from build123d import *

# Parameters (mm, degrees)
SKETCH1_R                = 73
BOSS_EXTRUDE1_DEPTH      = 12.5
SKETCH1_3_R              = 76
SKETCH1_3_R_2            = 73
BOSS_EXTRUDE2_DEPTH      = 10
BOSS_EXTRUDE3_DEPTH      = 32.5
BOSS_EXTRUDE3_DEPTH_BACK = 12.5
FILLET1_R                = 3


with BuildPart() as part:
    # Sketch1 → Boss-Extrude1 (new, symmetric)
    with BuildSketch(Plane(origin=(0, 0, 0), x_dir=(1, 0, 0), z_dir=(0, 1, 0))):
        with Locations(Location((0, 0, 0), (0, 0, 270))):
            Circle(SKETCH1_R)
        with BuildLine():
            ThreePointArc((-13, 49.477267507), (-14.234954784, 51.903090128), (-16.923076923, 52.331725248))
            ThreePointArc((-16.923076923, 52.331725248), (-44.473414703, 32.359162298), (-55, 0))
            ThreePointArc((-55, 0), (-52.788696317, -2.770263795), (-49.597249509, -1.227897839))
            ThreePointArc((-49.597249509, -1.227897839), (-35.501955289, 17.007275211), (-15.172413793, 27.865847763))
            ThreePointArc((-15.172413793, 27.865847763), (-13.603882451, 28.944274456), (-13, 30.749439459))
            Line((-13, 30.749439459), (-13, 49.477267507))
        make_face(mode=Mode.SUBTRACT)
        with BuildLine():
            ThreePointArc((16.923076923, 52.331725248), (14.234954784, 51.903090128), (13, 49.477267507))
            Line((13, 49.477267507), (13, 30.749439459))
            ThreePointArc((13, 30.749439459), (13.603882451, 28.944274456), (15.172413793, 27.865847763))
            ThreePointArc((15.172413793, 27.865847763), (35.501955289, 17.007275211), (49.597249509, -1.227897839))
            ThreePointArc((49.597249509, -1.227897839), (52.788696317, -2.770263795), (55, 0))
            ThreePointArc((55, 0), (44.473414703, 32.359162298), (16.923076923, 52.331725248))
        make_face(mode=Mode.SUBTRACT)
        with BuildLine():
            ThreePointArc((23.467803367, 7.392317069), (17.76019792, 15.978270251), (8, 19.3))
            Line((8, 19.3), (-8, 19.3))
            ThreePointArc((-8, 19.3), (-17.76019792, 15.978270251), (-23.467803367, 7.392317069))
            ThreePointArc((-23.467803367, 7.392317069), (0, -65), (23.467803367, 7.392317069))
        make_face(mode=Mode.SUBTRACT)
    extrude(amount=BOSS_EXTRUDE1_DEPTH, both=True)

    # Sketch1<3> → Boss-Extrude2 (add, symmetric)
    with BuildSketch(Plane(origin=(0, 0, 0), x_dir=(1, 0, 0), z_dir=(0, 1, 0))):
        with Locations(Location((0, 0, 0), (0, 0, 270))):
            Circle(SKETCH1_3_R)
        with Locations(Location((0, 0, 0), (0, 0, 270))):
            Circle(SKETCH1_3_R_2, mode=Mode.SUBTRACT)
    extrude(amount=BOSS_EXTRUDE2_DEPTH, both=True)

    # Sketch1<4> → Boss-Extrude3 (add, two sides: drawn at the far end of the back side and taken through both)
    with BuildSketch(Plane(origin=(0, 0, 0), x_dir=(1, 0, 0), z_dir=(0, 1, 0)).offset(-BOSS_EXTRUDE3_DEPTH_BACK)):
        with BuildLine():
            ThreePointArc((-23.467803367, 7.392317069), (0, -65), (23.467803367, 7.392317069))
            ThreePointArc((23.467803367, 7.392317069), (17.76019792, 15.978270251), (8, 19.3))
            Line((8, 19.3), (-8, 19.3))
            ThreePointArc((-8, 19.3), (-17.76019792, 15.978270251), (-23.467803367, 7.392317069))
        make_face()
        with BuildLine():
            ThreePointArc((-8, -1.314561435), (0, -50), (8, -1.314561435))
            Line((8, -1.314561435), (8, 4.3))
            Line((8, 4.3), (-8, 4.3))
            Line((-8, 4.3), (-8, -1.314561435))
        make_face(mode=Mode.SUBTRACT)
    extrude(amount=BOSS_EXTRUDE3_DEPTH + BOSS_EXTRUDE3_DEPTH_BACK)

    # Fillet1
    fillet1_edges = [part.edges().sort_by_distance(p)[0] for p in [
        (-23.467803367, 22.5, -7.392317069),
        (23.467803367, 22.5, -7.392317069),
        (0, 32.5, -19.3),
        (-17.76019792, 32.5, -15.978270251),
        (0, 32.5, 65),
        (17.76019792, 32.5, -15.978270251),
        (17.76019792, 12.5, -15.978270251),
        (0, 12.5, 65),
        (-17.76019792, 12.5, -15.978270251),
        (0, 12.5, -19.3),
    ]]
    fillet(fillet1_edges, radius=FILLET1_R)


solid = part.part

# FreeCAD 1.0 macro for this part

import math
import FreeCAD as App
import Part
import Sketcher
from FreeCAD import Vector
Q = App.Units.Quantity


def edges_at(feature, points):
    """Names of the edges that pass closest to the given points."""
    edges = feature.Shape.Edges
    near = lambda p: min(range(len(edges)), key=lambda i: edges[i].distToShape(Part.Vertex(*p))[0])
    return sorted({f"Edge{near(p) + 1}" for p in points})

doc = App.newDocument("Part")
params = doc.addObject("Spreadsheet::Sheet", "Params")
for row, (alias, value) in enumerate([
    ("sketch1_diameter", "146 mm"),
    ("sketch1_radius", "3 mm"),
    ("sketch1_radius2", "55 mm"),
    ("sketch1_radius3", "16 mm"),
    ("sketch1_radius4", "40 mm"),
    ("pad1_length", "25 mm"),
    ("sketch2_diameter", "152 mm"),
    ("sketch2_diameter2", "146 mm"),
    ("pad2_length", "20 mm"),
    ("sketch3_radius", "40 mm"),
    ("sketch3_radius2", "16 mm"),
    ("sketch3_radius3", "25 mm"),
    ("sketch3_width", "16 mm"),
    ("pad3_length", "32.5 mm"),
    ("pad3_length2", "12.5 mm"),
    ("fillet_radius", "3 mm"),
], start=1):
    params.set(f"A{row}", alias)
    params.set(f"B{row}", "=" + value)
    params.setAlias(f"B{row}", alias)

body = doc.addObject("PartDesign::Body", "Body")

sketch1 = body.newObject("Sketcher::SketchObject", "Sketch")
sketch1.AttachmentSupport = (doc.getObject("XZ_Plane"), [""])
sketch1.MapMode = "FlatFace"
sketch1.addGeometry([
    Part.Circle(Vector(0, 0, 0), Vector(0, 0, 1), 73),
    Part.ArcOfCircle(Part.Circle(Vector(-16, -49.5, 0), Vector(0, 0, 1), 3), math.radians(-108), math.radians(0)),
    Part.LineSegment(Vector(-13, -49.5, 0), Vector(-13, -30.7, 0)),
    Part.ArcOfCircle(Part.Circle(Vector(-16, -30.7, 0), Vector(0, 0, 1), 3), math.radians(0), math.radians(74)),
    Part.ArcOfCircle(Part.Circle(Vector(0, 25, 0), Vector(0, 0, 1), 55), math.radians(-154), math.radians(-106)),
    Part.ArcOfCircle(Part.Circle(Vector(-52.2, 0, 0), Vector(0, 0, 1), 2.8), math.radians(26), math.radians(180)),
    Part.ArcOfCircle(Part.Circle(Vector(0, 0, 0), Vector(0, 0, 1), 55), math.radians(-180), math.radians(-108)),
    Part.ArcOfCircle(Part.Circle(Vector(16, -49.5, 0), Vector(0, 0, 1), 3), math.radians(180), math.radians(288)),
    Part.ArcOfCircle(Part.Circle(Vector(0, 0, 0), Vector(0, 0, 1), 55), math.radians(-72), math.radians(0)),
    Part.ArcOfCircle(Part.Circle(Vector(52.2, 0, 0), Vector(0, 0, 1), 2.8), math.radians(0), math.radians(154)),
    Part.ArcOfCircle(Part.Circle(Vector(0, 25, 0), Vector(0, 0, 1), 55), math.radians(-74), math.radians(-26)),
    Part.ArcOfCircle(Part.Circle(Vector(16, -30.7, 0), Vector(0, 0, 1), 3), math.radians(106), math.radians(180)),
    Part.LineSegment(Vector(13, -30.7, 0), Vector(13, -49.5, 0)),
    Part.ArcOfCircle(Part.Circle(Vector(8, -3.3, 0), Vector(0, 0, 1), 16), math.radians(-90), math.radians(-15)),
    Part.ArcOfCircle(Part.Circle(Vector(0, 25, 0), Vector(0, 0, 1), 40), math.radians(-54), math.radians(234)),
    Part.ArcOfCircle(Part.Circle(Vector(-8, -3.3, 0), Vector(0, 0, 1), 16), math.radians(-165), math.radians(-90)),
    Part.LineSegment(Vector(-8, -19.3, 0), Vector(8, -19.3, 0)),
], False)
sketch1.addConstraint([
    Sketcher.Constraint("Tangent", 1, 2, 2, 1),
    Sketcher.Constraint("Tangent", 2, 2, 3, 1),
    Sketcher.Constraint("Tangent", 3, 2, 4, 2),
    Sketcher.Constraint("Tangent", 4, 1, 5, 1),
    Sketcher.Constraint("Tangent", 5, 2, 6, 1),
    Sketcher.Constraint("Tangent", 6, 2, 1, 1),
    Sketcher.Constraint("Tangent", 7, 2, 8, 1),
    Sketcher.Constraint("Tangent", 8, 2, 9, 1),
    Sketcher.Constraint("Tangent", 9, 2, 10, 2),
    Sketcher.Constraint("Tangent", 10, 1, 11, 1),
    Sketcher.Constraint("Tangent", 11, 2, 12, 1),
    Sketcher.Constraint("Tangent", 12, 2, 7, 1),
    Sketcher.Constraint("Coincident", 13, 2, 14, 1),
    Sketcher.Constraint("Coincident", 14, 2, 15, 1),
    Sketcher.Constraint("Tangent", 15, 2, 16, 1),
    Sketcher.Constraint("Tangent", 16, 2, 13, 1),
    Sketcher.Constraint("Vertical", 2),
    Sketcher.Constraint("Vertical", 12),
    Sketcher.Constraint("Horizontal", 16),
    Sketcher.Constraint("Coincident", 0, 3, -1, 1),
    Sketcher.Constraint("Coincident", 6, 3, -1, 1),
    Sketcher.Constraint("Coincident", 8, 3, -1, 1),
    Sketcher.Constraint("Coincident", 10, 3, 4, 3),
    Sketcher.Constraint("Coincident", 14, 3, 4, 3),
    Sketcher.Constraint("Equal", 1, 3),
    Sketcher.Constraint("Equal", 4, 6),
    Sketcher.Constraint("Equal", 3, 7),
    Sketcher.Constraint("Equal", 6, 8),
    Sketcher.Constraint("Equal", 5, 9),
    Sketcher.Constraint("Equal", 8, 10),
    Sketcher.Constraint("Equal", 7, 11),
    Sketcher.Constraint("Equal", 13, 15),
    Sketcher.Constraint("Symmetric", 3, 3, 11, 3, -2),
    Sketcher.Constraint("PointOnObject", 5, 3, -1),
    Sketcher.Constraint("Horizontal", 13, 2, 14, 2),
    Sketcher.Constraint("Diameter", 0, Q("146 mm")),
    Sketcher.Constraint("Radius", 1, Q("3 mm")),
    Sketcher.Constraint("Radius", 4, Q("55 mm")),
    Sketcher.Constraint("Radius", 13, Q("16 mm")),
    Sketcher.Constraint("Radius", 14, Q("40 mm")),
    Sketcher.Constraint("DistanceX", 16, 1, 16, 2, Q("16 mm")),
    Sketcher.Constraint("DistanceX", 1, 3, -1, 1, Q("16 mm")),
    Sketcher.Constraint("DistanceY", -1, 1, 4, 3, Q("25 mm")),
    Sketcher.Constraint("DistanceY", 13, 3, -1, 1, Q("3.3 mm")),
])
sketch1.setExpression("Constraints[35]", "Params.sketch1_diameter")
sketch1.setExpression("Constraints[36]", "Params.sketch1_radius")
sketch1.setExpression("Constraints[37]", "Params.sketch1_radius2")
sketch1.setExpression("Constraints[38]", "Params.sketch1_radius3")
sketch1.setExpression("Constraints[39]", "Params.sketch1_radius4")
pad1 = body.newObject("PartDesign::Pad", "Pad")
pad1.Profile = sketch1
pad1.setExpression("Length", "Params.pad1_length")
pad1.Midplane = True

sketch2 = body.newObject("Sketcher::SketchObject", "Sketch001")
sketch2.AttachmentSupport = (doc.getObject("XZ_Plane"), [""])
sketch2.MapMode = "FlatFace"
sketch2.addGeometry([
    Part.Circle(Vector(0, 0, 0), Vector(0, 0, 1), 76),
    Part.Circle(Vector(0, 0, 0), Vector(0, 0, 1), 73),
], False)
sketch2.addConstraint([
    Sketcher.Constraint("Coincident", 0, 3, -1, 1),
    Sketcher.Constraint("Coincident", 1, 3, -1, 1),
    Sketcher.Constraint("Diameter", 0, Q("152 mm")),
    Sketcher.Constraint("Diameter", 1, Q("146 mm")),
])
sketch2.setExpression("Constraints[2]", "Params.sketch2_diameter")
sketch2.setExpression("Constraints[3]", "Params.sketch2_diameter2")
pad2 = body.newObject("PartDesign::Pad", "Pad001")
pad2.Profile = sketch2
pad2.setExpression("Length", "Params.pad2_length")
pad2.Midplane = True

sketch3 = body.newObject("Sketcher::SketchObject", "Sketch002")
sketch3.AttachmentSupport = (doc.getObject("XZ_Plane"), [""])
sketch3.MapMode = "FlatFace"
sketch3.addGeometry([
    Part.ArcOfCircle(Part.Circle(Vector(0, 25, 0), Vector(0, 0, 1), 40), math.radians(-54), math.radians(234)),
    Part.ArcOfCircle(Part.Circle(Vector(8, -3, 0), Vector(0, 0, 1), 16), math.radians(-90), math.radians(-15)),
    Part.LineSegment(Vector(8, -19, 0), Vector(-8, -19, 0)),
    Part.ArcOfCircle(Part.Circle(Vector(-8, -3, 0), Vector(0, 0, 1), 16), math.radians(-165), math.radians(-90)),
    Part.ArcOfCircle(Part.Circle(Vector(0, 25, 0), Vector(0, 0, 1), 25), math.radians(-71), math.radians(251)),
    Part.LineSegment(Vector(-8, 1, 0), Vector(-8, -4, 0)),
    Part.LineSegment(Vector(-8, -4, 0), Vector(8, -4, 0)),
    Part.LineSegment(Vector(8, -4, 0), Vector(8, 1, 0)),
], False)
sketch3.addConstraint([
    Sketcher.Constraint("Coincident", 0, 1, 1, 2),
    Sketcher.Constraint("Tangent", 1, 1, 2, 1),
    Sketcher.Constraint("Tangent", 2, 2, 3, 2),
    Sketcher.Constraint("Coincident", 3, 1, 0, 2),
    Sketcher.Constraint("Coincident", 4, 2, 5, 1),
    Sketcher.Constraint("Coincident", 5, 2, 6, 1),
    Sketcher.Constraint("Coincident", 6, 2, 7, 1),
    Sketcher.Constraint("Coincident", 7, 2, 4, 1),
    Sketcher.Constraint("Horizontal", 2),
    Sketcher.Constraint("Vertical", 5),
    Sketcher.Constraint("Horizontal", 6),
    Sketcher.Constraint("Vertical", 7),
    Sketcher.Constraint("Coincident", 4, 3, 0, 3),
    Sketcher.Constraint("Equal", 1, 3),
    Sketcher.Constraint("Symmetric", 0, 1, 3, 1, -2),
    Sketcher.Constraint("Horizontal", 4, 2, 7, 2),
    Sketcher.Constraint("Vertical", 2, 2, 4, 2),
    Sketcher.Constraint("Radius", 0, Q("40 mm")),
    Sketcher.Constraint("Radius", 1, Q("16 mm")),
    Sketcher.Constraint("Radius", 4, Q("25 mm")),
    Sketcher.Constraint("DistanceX", 2, 2, 2, 1, Q("16 mm")),
    Sketcher.Constraint("DistanceY", -1, 1, 0, 3, Q("25 mm")),
    Sketcher.Constraint("DistanceY", 5, 2, 3, 3, Q("1 mm")),
    Sketcher.Constraint("DistanceY", 1, 3, -1, 1, Q("3.3 mm")),
])
sketch3.setExpression("Constraints[17]", "Params.sketch3_radius")
sketch3.setExpression("Constraints[18]", "Params.sketch3_radius2")
sketch3.setExpression("Constraints[19]", "Params.sketch3_radius3")
sketch3.setExpression("Constraints[20]", "Params.sketch3_width")
pad3 = body.newObject("PartDesign::Pad", "Pad002")
pad3.Profile = sketch3
pad3.Type = "TwoLengths"
pad3.setExpression("Length", "Params.pad3_length")
pad3.setExpression("Length2", "Params.pad3_length2")
pad3.Reversed = True
doc.recompute()

fillet = body.newObject("PartDesign::Fillet", "Fillet")
fillet.Base = (pad3, edges_at(pad3, [
    (-23.468, 22.5, -7.392),
    (23.468, 22.5, -7.392),
    (0, 32.5, -19.3),
    (-17.76, 32.5, -15.978),
    (0, 32.5, 65),
    (17.76, 32.5, -15.978),
    (17.76, 12.5, -15.978),
    (0, 12.5, 65),
    (-17.76, 12.5, -15.978),
    (0, 12.5, -19.3),
]))
fillet.setExpression("Radius", "Params.fillet_radius")

doc.recompute()
